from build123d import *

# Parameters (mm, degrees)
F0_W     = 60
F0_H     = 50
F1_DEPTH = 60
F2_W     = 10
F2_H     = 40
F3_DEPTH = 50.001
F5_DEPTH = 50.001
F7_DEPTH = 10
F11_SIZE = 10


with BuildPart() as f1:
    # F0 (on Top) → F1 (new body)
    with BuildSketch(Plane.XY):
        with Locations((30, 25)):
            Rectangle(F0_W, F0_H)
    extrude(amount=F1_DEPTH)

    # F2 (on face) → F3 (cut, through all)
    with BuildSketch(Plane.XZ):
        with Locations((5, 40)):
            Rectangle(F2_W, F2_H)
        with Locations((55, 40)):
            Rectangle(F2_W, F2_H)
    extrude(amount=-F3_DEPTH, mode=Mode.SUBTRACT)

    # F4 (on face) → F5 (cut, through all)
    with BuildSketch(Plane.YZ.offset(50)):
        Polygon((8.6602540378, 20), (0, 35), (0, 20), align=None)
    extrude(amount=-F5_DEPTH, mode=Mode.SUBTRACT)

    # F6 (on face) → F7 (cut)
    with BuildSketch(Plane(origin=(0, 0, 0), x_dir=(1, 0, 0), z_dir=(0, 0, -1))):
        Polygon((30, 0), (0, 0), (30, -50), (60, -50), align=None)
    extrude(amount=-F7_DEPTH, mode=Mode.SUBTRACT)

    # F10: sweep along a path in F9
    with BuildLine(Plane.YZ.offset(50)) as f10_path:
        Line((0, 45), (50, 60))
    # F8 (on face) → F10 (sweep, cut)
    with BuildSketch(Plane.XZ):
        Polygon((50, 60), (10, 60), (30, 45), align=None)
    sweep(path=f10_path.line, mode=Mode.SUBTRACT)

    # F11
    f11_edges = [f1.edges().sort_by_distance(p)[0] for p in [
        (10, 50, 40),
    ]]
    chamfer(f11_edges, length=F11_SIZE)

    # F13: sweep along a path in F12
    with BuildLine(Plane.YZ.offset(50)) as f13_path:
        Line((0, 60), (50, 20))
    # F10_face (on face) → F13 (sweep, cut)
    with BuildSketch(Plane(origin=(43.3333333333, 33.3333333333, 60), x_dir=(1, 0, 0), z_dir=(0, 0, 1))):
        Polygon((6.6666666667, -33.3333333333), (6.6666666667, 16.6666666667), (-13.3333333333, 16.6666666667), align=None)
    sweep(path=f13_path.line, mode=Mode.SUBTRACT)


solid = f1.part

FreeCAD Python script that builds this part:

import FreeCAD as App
import Part
import Sketcher
Q = App.Units.Quantity


def edges_at(feature, points):
    """Names of the edges that pass closest to the given points."""
    edges = feature.Shape.Edges
    near = lambda p: min(range(len(edges)), key=lambda i: edges[i].distToShape(Part.Vertex(*p))[0])
    return sorted({f"Edge{near(p) + 1}" for p in points})

doc = App.newDocument("Part")
params = doc.addObject("Spreadsheet::Sheet", "Params")
for row, (alias, value) in enumerate([
    ("sketch1_width", "60 mm"),
    ("sketch1_height", "50 mm"),
    ("pad1_length", "60 mm"),
    ("sketch2_width", "10 mm"),
    ("sketch2_height", "40 mm"),
    ("sketch3_height", "15 mm"),
    ("sketch4_width", "30 mm"),
    ("pocket3_length", "10 mm"),
    ("sketch5_width", "40 mm"),
    ("sketch5_length", "25 mm"),
    ("chamfer_size", "10 mm"),
    ("sketch7_width", "20 mm"),
    ("sketch7_height", "50 mm"),
], start=1):
    params.set(f"A{row}", alias)
    params.set(f"B{row}", "=" + value)
    params.setAlias(f"B{row}", alias)

body = doc.addObject("PartDesign::Body", "Body")

# Sketch on XY plane
sketch1 = body.newObject("Sketcher::SketchObject", "Sketch")
sketch1.AttachmentSupport = (doc.getObject("XY_Plane"), [""])
sketch1.MapMode = "FlatFace"
sketch1.addGeometry(Part.LineSegment(App.Vector(0, 50, 0), App.Vector(0, 0, 0)), False)
sketch1.addGeometry(Part.LineSegment(App.Vector(0, 0, 0), App.Vector(60, 0, 0)), False)
sketch1.addGeometry(Part.LineSegment(App.Vector(60, 0, 0), App.Vector(60, 50, 0)), False)
sketch1.addGeometry(Part.LineSegment(App.Vector(60, 50, 0), App.Vector(0, 50, 0)), False)
sketch1.addConstraint(Sketcher.Constraint("Coincident", 0, 2, 1, 1))
sketch1.addConstraint(Sketcher.Constraint("Coincident", 1, 2, 2, 1))
sketch1.addConstraint(Sketcher.Constraint("Coincident", 2, 2, 3, 1))
sketch1.addConstraint(Sketcher.Constraint("Coincident", 3, 2, 0, 1))
sketch1.addConstraint(Sketcher.Constraint("Vertical", 0))
sketch1.addConstraint(Sketcher.Constraint("Horizontal", 1))
sketch1.addConstraint(Sketcher.Constraint("Vertical", 2))
sketch1.addConstraint(Sketcher.Constraint("Horizontal", 3))
sketch1.addConstraint(Sketcher.Constraint("Coincident", 0, 2, -1, 1))
sketch1.addConstraint(Sketcher.Constraint("DistanceX", 1, 1, 1, 2, 60.0))
sketch1.addConstraint(Sketcher.Constraint("DistanceY", 0, 2, 0, 1, 50.0))
sketch1.setExpression("Constraints[9]", "Params.sketch1_width")
sketch1.setExpression("Constraints[10]", "Params.sketch1_height")
pad1 = body.newObject("PartDesign::Pad", "Pad")
pad1.Profile = sketch1
pad1.setExpression("Length", "Params.pad1_length")

# Sketch on XZ plane
sketch2 = body.newObject("Sketcher::SketchObject", "Sketch001")
sketch2.AttachmentSupport = (doc.getObject("XZ_Plane"), [""])
sketch2.MapMode = "FlatFace"
sketch2.addGeometry(Part.LineSegment(App.Vector(0, 60, 0), App.Vector(0, 20, 0)), False)
sketch2.addGeometry(Part.LineSegment(App.Vector(0, 20, 0), App.Vector(10, 20, 0)), False)
sketch2.addGeometry(Part.LineSegment(App.Vector(10, 20, 0), App.Vector(10, 60, 0)), False)
sketch2.addGeometry(Part.LineSegment(App.Vector(10, 60, 0), App.Vector(0, 60, 0)), False)
sketch2.addGeometry(Part.LineSegment(App.Vector(50, 60, 0), App.Vector(50, 20, 0)), False)
sketch2.addGeometry(Part.LineSegment(App.Vector(50, 20, 0), App.Vector(60, 20, 0)), False)
sketch2.addGeometry(Part.LineSegment(App.Vector(60, 20, 0), App.Vector(60, 60, 0)), False)
sketch2.addGeometry(Part.LineSegment(App.Vector(60, 60, 0), App.Vector(50, 60, 0)), False)
sketch2.addConstraint(Sketcher.Constraint("Coincident", 0, 2, 1, 1))
sketch2.addConstraint(Sketcher.Constraint("Coincident", 1, 2, 2, 1))
sketch2.addConstraint(Sketcher.Constraint("Coincident", 2, 2, 3, 1))
sketch2.addConstraint(Sketcher.Constraint("Coincident", 3, 2, 0, 1))
sketch2.addConstraint(Sketcher.Constraint("Coincident", 4, 2, 5, 1))
sketch2.addConstraint(Sketcher.Constraint("Coincident", 5, 2, 6, 1))
sketch2.addConstraint(Sketcher.Constraint("Coincident", 6, 2, 7, 1))
sketch2.addConstraint(Sketcher.Constraint("Coincident", 7, 2, 4, 1))
sketch2.addConstraint(Sketcher.Constraint("Vertical", 0))
sketch2.addConstraint(Sketcher.Constraint("Horizontal", 1))
sketch2.addConstraint(Sketcher.Constraint("Vertical", 2))
sketch2.addConstraint(Sketcher.Constraint("Horizontal", 3))
sketch2.addConstraint(Sketcher.Constraint("Vertical", 4))
sketch2.addConstraint(Sketcher.Constraint("Horizontal", 5))
sketch2.addConstraint(Sketcher.Constraint("Vertical", 6))
sketch2.addConstraint(Sketcher.Constraint("Horizontal", 7))
sketch2.addConstraint(Sketcher.Constraint("PointOnObject", 0, 2, -2))
sketch2.addConstraint(Sketcher.Constraint("Horizontal", 1, 2, 4, 2))
sketch2.addConstraint(Sketcher.Constraint("Horizontal", 3, 2, 6, 2))
sketch2.addConstraint(Sketcher.Constraint("Equal", 3, 5))
sketch2.addConstraint(Sketcher.Constraint("DistanceX", 1, 1, 1, 2, 10.0))
sketch2.addConstraint(Sketcher.Constraint("DistanceY", 0, 2, 0, 1, 40.0))
sketch2.addConstraint(Sketcher.Constraint("DistanceY", -1, 1, 0, 2, 20.0))
sketch2.addConstraint(Sketcher.Constraint("DistanceX", -1, 1, 4, 2, 50.0))
sketch2.setExpression("Constraints[20]", "Params.sketch2_width")
sketch2.setExpression("Constraints[21]", "Params.sketch2_height")
pocket1 = body.newObject("PartDesign::Pocket", "Pocket")
pocket1.Profile = sketch2
pocket1.Type = "ThroughAll"

# Sketch on YZ plane
sketch3 = body.newObject("Sketcher::SketchObject", "Sketch002")
sketch3.AttachmentSupport = (doc.getObject("YZ_Plane"), [""])
sketch3.MapMode = "FlatFace"
sketch3.AttachmentOffset = App.Placement(App.Vector(0, 0, 50), App.Rotation())
sketch3.addGeometry(Part.LineSegment(App.Vector(9, 20, 0), App.Vector(0, 35, 0)), False)
sketch3.addGeometry(Part.LineSegment(App.Vector(0, 35, 0), App.Vector(0, 20, 0)), False)
sketch3.addGeometry(Part.LineSegment(App.Vector(0, 20, 0), App.Vector(9, 20, 0)), False)
sketch3.addConstraint(Sketcher.Constraint("Coincident", 0, 2, 1, 1))
sketch3.addConstraint(Sketcher.Constraint("Coincident", 1, 2, 2, 1))
sketch3.addConstraint(Sketcher.Constraint("Coincident", 2, 2, 0, 1))
sketch3.addConstraint(Sketcher.Constraint("Vertical", 1))
sketch3.addConstraint(Sketcher.Constraint("Horizontal", 2))
sketch3.addConstraint(Sketcher.Constraint("PointOnObject", 0, 2, -2))
sketch3.addConstraint(Sketcher.Constraint("DistanceY", 1, 2, 1, 1, 15.0))
sketch3.addConstraint(Sketcher.Constraint("Angle", 0, Q("120 deg")))
sketch3.addConstraint(Sketcher.Constraint("DistanceY", -1, 1, 0, 2, 35.0))
sketch3.setExpression("Constraints[6]", "Params.sketch3_height")
pocket2 = body.newObject("PartDesign::Pocket", "Pocket001")
pocket2.Profile = sketch3
pocket2.Type = "ThroughAll"

# Sketch on XY plane
sketch4 = body.newObject("Sketcher::SketchObject", "Sketch003")
sketch4.AttachmentSupport = (doc.getObject("XY_Plane"), [""])
sketch4.MapMode = "FlatFace"
sketch4.addGeometry(Part.LineSegment(App.Vector(30, 0, 0), App.Vector(0, 0, 0)), False)
sketch4.addGeometry(Part.LineSegment(App.Vector(0, 0, 0), App.Vector(30, 50, 0)), False)
sketch4.addGeometry(Part.LineSegment(App.Vector(30, 50, 0), App.Vector(60, 50, 0)), False)
sketch4.addGeometry(Part.LineSegment(App.Vector(60, 50, 0), App.Vector(30, 0, 0)), False)
sketch4.addConstraint(Sketcher.Constraint("Coincident", 0, 2, 1, 1))
sketch4.addConstraint(Sketcher.Constraint("Coincident", 1, 2, 2, 1))
sketch4.addConstraint(Sketcher.Constraint("Coincident", 2, 2, 3, 1))
sketch4.addConstraint(Sketcher.Constraint("Coincident", 3, 2, 0, 1))
sketch4.addConstraint(Sketcher.Constraint("Horizontal", 0))
sketch4.addConstraint(Sketcher.Constraint("Horizontal", 2))
sketch4.addConstraint(Sketcher.Constraint("Coincident", 0, 2, -1, 1))
sketch4.addConstraint(Sketcher.Constraint("Parallel", 1, 3))
sketch4.addConstraint(Sketcher.Constraint("Vertical", 1, 2, 3, 2))
sketch4.addConstraint(Sketcher.Constraint("DistanceX", 0, 2, 0, 1, 30.0))
sketch4.addConstraint(Sketcher.Constraint("DistanceY", -1, 1, 1, 2, 50.0))
sketch4.setExpression("Constraints[9]", "Params.sketch4_width")
pocket3 = body.newObject("PartDesign::Pocket", "Pocket002")
pocket3.Profile = sketch4
pocket3.setExpression("Length", "Params.pocket3_length")
pocket3.Reversed = True

# Sketch on XZ plane
sketch5 = body.newObject("Sketcher::SketchObject", "Sketch004")
sketch5.AttachmentSupport = (doc.getObject("XZ_Plane"), [""])
sketch5.MapMode = "FlatFace"
sketch5.addGeometry(Part.LineSegment(App.Vector(50, 60, 0), App.Vector(10, 60, 0)), False)
sketch5.addGeometry(Part.LineSegment(App.Vector(10, 60, 0), App.Vector(30, 45, 0)), False)
sketch5.addGeometry(Part.LineSegment(App.Vector(30, 45, 0), App.Vector(50, 60, 0)), False)
sketch5.addConstraint(Sketcher.Constraint("Coincident", 0, 2, 1, 1))
sketch5.addConstraint(Sketcher.Constraint("Coincident", 1, 2, 2, 1))
sketch5.addConstraint(Sketcher.Constraint("Coincident", 2, 2, 0, 1))
sketch5.addConstraint(Sketcher.Constraint("Horizontal", 0))
sketch5.addConstraint(Sketcher.Constraint("Equal", 1, 2))
sketch5.addConstraint(Sketcher.Constraint("DistanceX", 0, 2, 0, 1, 40.0))
sketch5.addConstraint(Sketcher.Constraint("Distance", 1, 25.0))
sketch5.addConstraint(Sketcher.Constraint("DistanceX", -1, 1, 0, 2, 10.0))
sketch5.addConstraint(Sketcher.Constraint("DistanceY", -1, 1, 0, 2, 60.0))
sketch5.setExpression("Constraints[5]", "Params.sketch5_width")
sketch5.setExpression("Constraints[6]", "Params.sketch5_length")

# Sketch on an angled plane
sketch6 = body.newObject("Sketcher::SketchObject", "Sketch005")
sketch6.Placement = App.Placement(App.Vector(0, -12.385321, 41.284404), App.Rotation(App.Vector(0, 0.957826285, 0.287347886), App.Vector(1, 0, 0), App.Vector(0, 0.287347886, -0.957826285), "ZXY"))
sketch6.addGeometry(Part.LineSegment(App.Vector(13, 50, 0), App.Vector(65, 50, 0)), False)
sketch6.addConstraint(Sketcher.Constraint("Horizontal", 0))
sketch6.addConstraint(Sketcher.Constraint("DistanceY", -1, 1, 0, 1, 50.0))
sketch6.addConstraint(Sketcher.Constraint("DistanceX", 0, 1, 0, 2, 52.201533))
sketch6.addConstraint(Sketcher.Constraint("DistanceX", -1, 1, 0, 1, 12.930655))
doc.recompute()

subtractivepipe = body.newObject("PartDesign::SubtractivePipe", "SubtractivePipe")
subtractivepipe.Profile = sketch5
subtractivepipe.Spine = (sketch6, ["Edge1"])
doc.recompute()

chamfer = body.newObject("PartDesign::Chamfer", "Chamfer")
chamfer.Base = (subtractivepipe, edges_at(subtractivepipe, [(10, 50, 40)]))
chamfer.setExpression("Size", "Params.chamfer_size")

# Sketch on XY plane
sketch7 = body.newObject("Sketcher::SketchObject", "Sketch006")
sketch7.AttachmentSupport = (doc.getObject("XY_Plane"), [""])
sketch7.MapMode = "FlatFace"
sketch7.AttachmentOffset = App.Placement(App.Vector(0, 0, 60), App.Rotation())
sketch7.addGeometry(Part.LineSegment(App.Vector(50, 0, 0), App.Vector(50, 50, 0)), False)
sketch7.addGeometry(Part.LineSegment(App.Vector(50, 50, 0), App.Vector(30, 50, 0)), False)
sketch7.addGeometry(Part.LineSegment(App.Vector(30, 50, 0), App.Vector(50, 0, 0)), False)
sketch7.addConstraint(Sketcher.Constraint("Coincident", 0, 2, 1, 1))
sketch7.addConstraint(Sketcher.Constraint("Coincident", 1, 2, 2, 1))
sketch7.addConstraint(Sketcher.Constraint("Coincident", 2, 2, 0, 1))
sketch7.addConstraint(Sketcher.Constraint("Vertical", 0))
sketch7.addConstraint(Sketcher.Constraint("Horizontal", 1))
sketch7.addConstraint(Sketcher.Constraint("PointOnObject", 2, 2, -1))
sketch7.addConstraint(Sketcher.Constraint("DistanceX", 1, 2, 1, 1, 20.0))
sketch7.addConstraint(Sketcher.Constraint("DistanceY", 0, 1, 0, 2, 50.0))
sketch7.addConstraint(Sketcher.Constraint("DistanceX", -1, 1, 0, 2, 50.0))
sketch7.setExpression("Constraints[6]", "Params.sketch7_width")
sketch7.setExpression("Constraints[7]", "Params.sketch7_height")

# Sketch on an angled plane
sketch8 = body.newObject("Sketcher::SketchObject", "Sketch007")
sketch8.Placement = App.Placement(App.Vector(0, 29.268293, 36.585366), App.Rotation(App.Vector(0, -0.780868809, 0.624695048), App.Vector(1, 0, 0), App.Vector(0, 0.624695048, 0.780868809), "ZXY"))
sketch8.addGeometry(Part.LineSegment(App.Vector(37, 50, 0), App.Vector(-27, 50, 0)), False)
sketch8.addConstraint(Sketcher.Constraint("Horizontal", 0))
sketch8.addConstraint(Sketcher.Constraint("DistanceY", -1, 1, 0, 1, 50.0))
sketch8.addConstraint(Sketcher.Constraint("DistanceX", 0, 2, 0, 1, 64.031242))
sketch8.addConstraint(Sketcher.Constraint("DistanceX", 0, 2, -1, 1, 26.54954))
doc.recompute()

subtractivepipe2 = body.newObject("PartDesign::SubtractivePipe", "SubtractivePipe001")
subtractivepipe2.Profile = sketch7
subtractivepipe2.Spine = (sketch8, ["Edge1"])

doc.recompute()
